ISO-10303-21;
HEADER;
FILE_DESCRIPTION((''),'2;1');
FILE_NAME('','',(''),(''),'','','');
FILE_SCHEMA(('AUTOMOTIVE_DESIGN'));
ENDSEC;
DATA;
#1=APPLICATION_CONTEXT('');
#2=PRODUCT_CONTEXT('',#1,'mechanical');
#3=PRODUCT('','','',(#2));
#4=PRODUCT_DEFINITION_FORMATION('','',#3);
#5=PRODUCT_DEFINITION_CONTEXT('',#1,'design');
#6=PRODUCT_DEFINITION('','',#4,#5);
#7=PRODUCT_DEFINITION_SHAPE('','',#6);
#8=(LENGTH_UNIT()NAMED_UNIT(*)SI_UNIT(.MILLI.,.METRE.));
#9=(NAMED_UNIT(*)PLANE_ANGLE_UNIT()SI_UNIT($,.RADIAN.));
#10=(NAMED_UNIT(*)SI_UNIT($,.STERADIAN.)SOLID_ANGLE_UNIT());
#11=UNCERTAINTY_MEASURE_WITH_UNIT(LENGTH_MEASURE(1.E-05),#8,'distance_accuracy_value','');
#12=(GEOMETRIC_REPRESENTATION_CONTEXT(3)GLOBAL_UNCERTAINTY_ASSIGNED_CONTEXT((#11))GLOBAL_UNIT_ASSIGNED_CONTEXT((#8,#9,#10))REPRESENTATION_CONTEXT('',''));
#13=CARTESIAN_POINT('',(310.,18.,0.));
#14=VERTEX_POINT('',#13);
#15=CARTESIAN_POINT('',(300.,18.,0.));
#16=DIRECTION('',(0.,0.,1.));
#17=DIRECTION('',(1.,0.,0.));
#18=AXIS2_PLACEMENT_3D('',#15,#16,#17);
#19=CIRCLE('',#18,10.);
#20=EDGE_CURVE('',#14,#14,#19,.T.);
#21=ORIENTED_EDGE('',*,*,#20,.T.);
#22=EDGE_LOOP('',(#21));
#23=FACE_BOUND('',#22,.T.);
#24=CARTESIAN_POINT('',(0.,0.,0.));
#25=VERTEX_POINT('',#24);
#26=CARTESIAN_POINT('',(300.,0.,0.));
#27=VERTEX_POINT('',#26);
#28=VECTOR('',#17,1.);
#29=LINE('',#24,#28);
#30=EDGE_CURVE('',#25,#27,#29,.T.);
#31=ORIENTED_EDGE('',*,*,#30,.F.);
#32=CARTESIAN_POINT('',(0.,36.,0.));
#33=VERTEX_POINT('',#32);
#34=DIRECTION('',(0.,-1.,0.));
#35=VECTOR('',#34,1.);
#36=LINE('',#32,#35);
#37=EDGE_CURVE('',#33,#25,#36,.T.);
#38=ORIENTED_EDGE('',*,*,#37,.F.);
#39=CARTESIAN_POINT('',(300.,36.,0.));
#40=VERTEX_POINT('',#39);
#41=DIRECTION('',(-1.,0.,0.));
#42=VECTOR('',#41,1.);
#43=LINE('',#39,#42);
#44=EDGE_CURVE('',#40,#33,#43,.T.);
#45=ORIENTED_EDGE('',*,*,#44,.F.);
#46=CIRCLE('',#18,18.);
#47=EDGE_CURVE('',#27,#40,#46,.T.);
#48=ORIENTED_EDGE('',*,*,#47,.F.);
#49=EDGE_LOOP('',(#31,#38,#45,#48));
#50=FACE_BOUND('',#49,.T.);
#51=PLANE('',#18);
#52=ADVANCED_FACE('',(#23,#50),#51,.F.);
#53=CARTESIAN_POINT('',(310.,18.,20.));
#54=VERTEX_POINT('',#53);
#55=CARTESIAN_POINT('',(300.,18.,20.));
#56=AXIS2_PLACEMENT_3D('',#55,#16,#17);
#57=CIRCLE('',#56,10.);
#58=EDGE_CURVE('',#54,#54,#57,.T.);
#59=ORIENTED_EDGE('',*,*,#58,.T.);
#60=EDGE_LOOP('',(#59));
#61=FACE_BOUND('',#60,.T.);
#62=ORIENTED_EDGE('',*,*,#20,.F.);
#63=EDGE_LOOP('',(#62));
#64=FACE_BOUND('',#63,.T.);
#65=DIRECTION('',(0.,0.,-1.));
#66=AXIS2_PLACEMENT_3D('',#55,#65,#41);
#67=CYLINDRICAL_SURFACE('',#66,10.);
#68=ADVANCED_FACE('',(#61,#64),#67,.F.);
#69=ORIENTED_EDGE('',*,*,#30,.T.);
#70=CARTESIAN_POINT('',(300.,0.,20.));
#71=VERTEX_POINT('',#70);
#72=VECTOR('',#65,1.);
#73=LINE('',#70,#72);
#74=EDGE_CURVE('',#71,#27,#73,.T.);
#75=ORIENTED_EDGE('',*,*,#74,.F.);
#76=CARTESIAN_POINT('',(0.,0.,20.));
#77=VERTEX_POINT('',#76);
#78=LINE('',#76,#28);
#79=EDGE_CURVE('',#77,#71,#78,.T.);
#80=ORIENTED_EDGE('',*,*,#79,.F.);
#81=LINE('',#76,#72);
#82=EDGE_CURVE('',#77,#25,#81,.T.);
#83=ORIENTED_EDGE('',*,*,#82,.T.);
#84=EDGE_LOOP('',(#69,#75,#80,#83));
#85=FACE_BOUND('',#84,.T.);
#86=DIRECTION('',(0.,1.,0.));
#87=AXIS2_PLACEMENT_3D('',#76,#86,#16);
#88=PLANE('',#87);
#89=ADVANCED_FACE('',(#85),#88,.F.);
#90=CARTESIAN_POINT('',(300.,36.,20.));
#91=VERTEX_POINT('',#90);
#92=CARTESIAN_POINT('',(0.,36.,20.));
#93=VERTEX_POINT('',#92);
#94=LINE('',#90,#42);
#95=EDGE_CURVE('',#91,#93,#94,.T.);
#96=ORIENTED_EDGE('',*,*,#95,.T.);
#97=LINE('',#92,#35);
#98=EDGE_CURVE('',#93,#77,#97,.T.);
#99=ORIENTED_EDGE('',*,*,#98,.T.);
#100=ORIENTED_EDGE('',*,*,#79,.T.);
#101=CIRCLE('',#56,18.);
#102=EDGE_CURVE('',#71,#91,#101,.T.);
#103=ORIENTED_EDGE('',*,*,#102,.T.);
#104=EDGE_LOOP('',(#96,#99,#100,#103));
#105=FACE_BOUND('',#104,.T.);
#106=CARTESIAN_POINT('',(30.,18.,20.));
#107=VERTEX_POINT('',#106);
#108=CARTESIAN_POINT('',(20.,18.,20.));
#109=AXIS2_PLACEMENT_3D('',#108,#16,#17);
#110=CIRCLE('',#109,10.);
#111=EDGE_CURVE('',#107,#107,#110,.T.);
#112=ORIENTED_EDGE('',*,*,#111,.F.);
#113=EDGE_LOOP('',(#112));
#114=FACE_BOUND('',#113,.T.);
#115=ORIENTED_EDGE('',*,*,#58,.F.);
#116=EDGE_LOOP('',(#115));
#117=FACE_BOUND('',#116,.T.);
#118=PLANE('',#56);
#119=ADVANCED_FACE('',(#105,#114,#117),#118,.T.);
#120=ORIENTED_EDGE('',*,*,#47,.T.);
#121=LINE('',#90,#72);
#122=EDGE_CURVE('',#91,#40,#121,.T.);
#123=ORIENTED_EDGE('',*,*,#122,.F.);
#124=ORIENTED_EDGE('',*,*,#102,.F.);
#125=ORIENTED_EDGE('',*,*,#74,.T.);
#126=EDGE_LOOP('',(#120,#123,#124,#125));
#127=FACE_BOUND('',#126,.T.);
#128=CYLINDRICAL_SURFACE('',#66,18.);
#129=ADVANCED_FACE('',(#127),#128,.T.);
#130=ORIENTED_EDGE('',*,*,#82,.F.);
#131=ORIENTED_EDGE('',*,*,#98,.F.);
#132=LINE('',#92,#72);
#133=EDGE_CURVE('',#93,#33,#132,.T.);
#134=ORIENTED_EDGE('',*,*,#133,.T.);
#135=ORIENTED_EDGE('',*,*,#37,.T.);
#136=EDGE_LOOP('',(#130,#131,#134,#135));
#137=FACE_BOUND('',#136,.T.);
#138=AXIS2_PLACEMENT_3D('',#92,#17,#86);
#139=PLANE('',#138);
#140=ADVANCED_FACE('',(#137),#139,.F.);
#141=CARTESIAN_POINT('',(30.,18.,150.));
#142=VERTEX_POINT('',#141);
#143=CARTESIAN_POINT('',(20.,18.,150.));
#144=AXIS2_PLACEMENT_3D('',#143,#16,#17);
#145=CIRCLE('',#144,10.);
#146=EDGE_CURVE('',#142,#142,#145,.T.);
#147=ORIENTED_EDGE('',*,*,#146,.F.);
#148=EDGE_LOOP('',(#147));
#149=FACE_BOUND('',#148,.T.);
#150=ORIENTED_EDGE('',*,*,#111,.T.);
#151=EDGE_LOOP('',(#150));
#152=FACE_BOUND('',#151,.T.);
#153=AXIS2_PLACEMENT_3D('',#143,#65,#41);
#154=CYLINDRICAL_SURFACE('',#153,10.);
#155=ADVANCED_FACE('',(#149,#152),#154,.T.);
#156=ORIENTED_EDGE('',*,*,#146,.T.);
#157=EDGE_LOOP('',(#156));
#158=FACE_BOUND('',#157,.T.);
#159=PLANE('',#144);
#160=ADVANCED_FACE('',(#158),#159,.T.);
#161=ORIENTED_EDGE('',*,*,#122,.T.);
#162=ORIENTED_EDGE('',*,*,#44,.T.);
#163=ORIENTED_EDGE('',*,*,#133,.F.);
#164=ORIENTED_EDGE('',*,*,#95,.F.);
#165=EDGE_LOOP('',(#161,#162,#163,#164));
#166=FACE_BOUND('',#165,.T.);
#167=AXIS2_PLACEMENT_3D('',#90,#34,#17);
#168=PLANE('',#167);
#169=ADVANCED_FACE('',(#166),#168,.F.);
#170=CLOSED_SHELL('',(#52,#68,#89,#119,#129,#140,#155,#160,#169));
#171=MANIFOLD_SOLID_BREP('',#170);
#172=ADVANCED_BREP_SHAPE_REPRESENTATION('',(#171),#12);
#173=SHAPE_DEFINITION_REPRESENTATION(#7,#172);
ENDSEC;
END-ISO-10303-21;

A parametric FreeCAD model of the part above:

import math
import FreeCAD as App
import Part
import Sketcher
from FreeCAD import Vector
Q = App.Units.Quantity

doc = App.newDocument("Part")
body = doc.addObject("PartDesign::Body", "Body")

sketch1 = body.newObject("Sketcher::SketchObject", "Sketch")
sketch1.AttachmentSupport = (doc.getObject("XY_Plane"), [""])
sketch1.MapMode = "FlatFace"
sketch1.addGeometry([
    Part.LineSegment(Vector(0, 0, 0), Vector(300, 0, 0)),
    Part.ArcOfCircle(Part.Circle(Vector(300, 18, 0), Vector(0, 0, 1), 18), math.radians(-90), math.radians(90)),
    Part.LineSegment(Vector(300, 36, 0), Vector(0, 36, 0)),
    Part.LineSegment(Vector(0, 36, 0), Vector(0, 0, 0)),
    Part.Circle(Vector(300, 18, 0), Vector(0, 0, 1), 10),
], False)
sketch1.addConstraint([
    Sketcher.Constraint("Tangent", 0, 2, 1, 1),
    Sketcher.Constraint("Tangent", 1, 2, 2, 1),
    Sketcher.Constraint("Coincident", 2, 2, 3, 1),
    Sketcher.Constraint("Coincident", 3, 2, 0, 1),
    Sketcher.Constraint("Horizontal", 0),
    Sketcher.Constraint("Horizontal", 2),
    Sketcher.Constraint("Vertical", 3),
    Sketcher.Constraint("Coincident", 3, 2, -1, 1),
    Sketcher.Constraint("Coincident", 4, 3, 1, 3),
    Sketcher.Constraint("Diameter", 4, Q("20 mm")),
    Sketcher.Constraint("Radius", 1, Q("18 mm")),
    Sketcher.Constraint("DistanceX", 0, 1, 0, 2, Q("300 mm")),
])
pad1 = body.newObject("PartDesign::Pad", "Pad")
pad1.Profile = sketch1
pad1.Length = 20

sketch2 = body.newObject("Sketcher::SketchObject", "Sketch001")
sketch2.AttachmentSupport = (doc.getObject("XY_Plane"), [""])
sketch2.MapMode = "FlatFace"
sketch2.AttachmentOffset = App.Placement(Vector(0, 0, 20), App.Rotation())
sketch2.addGeometry(Part.Circle(Vector(20, 18, 0), Vector(0, 0, 1), 10), False)
sketch2.addConstraint([
    Sketcher.Constraint("Diameter", 0, Q("20 mm")),
    Sketcher.Constraint("DistanceX", -1, 1, 0, 3, Q("20 mm")),
    Sketcher.Constraint("DistanceY", -1, 1, 0, 3, Q("18 mm")),
])
pad2 = body.newObject("PartDesign::Pad", "Pad001")
pad2.Profile = sketch2
pad2.Length = 130

doc.recompute()
